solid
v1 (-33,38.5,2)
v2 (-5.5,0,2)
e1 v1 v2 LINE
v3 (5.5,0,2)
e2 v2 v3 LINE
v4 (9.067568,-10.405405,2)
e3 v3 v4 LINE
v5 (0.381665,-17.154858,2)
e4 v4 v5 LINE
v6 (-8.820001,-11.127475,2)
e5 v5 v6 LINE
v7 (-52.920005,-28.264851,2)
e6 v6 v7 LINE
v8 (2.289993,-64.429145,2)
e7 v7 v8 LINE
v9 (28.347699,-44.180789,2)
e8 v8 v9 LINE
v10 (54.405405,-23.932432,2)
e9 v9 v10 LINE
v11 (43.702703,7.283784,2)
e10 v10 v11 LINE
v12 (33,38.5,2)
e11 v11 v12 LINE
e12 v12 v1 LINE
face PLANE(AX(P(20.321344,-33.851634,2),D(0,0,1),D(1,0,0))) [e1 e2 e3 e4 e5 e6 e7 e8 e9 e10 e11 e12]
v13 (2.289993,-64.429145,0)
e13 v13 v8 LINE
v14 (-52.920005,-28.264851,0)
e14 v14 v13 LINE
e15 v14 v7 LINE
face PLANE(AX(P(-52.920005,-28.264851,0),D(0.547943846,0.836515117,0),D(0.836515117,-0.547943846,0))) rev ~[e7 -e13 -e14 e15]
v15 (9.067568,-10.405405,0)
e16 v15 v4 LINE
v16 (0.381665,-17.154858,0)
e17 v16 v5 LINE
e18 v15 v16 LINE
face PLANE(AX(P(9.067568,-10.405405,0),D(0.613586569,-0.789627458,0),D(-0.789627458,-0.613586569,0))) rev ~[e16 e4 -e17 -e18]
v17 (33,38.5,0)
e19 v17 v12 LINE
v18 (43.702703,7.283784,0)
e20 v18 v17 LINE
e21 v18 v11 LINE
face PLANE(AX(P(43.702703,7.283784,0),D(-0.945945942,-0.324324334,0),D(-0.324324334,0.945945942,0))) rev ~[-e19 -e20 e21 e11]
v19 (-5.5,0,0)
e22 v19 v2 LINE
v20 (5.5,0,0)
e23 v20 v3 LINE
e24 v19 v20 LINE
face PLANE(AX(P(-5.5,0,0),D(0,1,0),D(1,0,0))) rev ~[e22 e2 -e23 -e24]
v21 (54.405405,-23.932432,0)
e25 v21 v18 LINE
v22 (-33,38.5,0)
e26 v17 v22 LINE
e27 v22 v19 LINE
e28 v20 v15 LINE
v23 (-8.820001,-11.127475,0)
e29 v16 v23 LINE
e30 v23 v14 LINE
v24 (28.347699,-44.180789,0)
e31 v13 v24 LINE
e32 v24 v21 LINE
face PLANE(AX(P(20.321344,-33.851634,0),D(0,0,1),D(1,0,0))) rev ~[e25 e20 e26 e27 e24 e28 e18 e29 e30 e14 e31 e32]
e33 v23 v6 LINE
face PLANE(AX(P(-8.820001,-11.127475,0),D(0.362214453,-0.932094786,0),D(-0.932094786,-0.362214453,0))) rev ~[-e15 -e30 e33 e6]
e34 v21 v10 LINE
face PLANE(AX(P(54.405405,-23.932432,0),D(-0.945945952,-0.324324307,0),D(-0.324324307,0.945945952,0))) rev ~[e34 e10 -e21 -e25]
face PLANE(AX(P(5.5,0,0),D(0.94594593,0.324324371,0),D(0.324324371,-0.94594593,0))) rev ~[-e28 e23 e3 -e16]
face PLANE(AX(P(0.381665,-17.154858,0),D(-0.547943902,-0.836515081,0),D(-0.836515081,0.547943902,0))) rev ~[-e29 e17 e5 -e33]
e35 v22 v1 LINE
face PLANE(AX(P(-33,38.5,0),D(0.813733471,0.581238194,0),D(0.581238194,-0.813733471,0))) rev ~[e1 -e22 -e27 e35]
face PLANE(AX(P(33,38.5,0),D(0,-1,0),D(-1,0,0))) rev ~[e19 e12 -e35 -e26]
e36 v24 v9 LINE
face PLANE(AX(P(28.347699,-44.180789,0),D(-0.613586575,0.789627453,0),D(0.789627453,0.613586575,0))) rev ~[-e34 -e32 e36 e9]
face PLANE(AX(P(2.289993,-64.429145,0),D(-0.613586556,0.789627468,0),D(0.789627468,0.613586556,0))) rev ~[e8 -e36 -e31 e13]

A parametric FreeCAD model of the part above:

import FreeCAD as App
import Part
import Sketcher
from FreeCAD import Vector
Q = App.Units.Quantity


def add_polygon(sketch, points):
    """Adds a closed chain of lines whose ends are joined by coincident constraints."""
    first, n = sketch.GeometryCount, len(points)
    for a, b in zip(points, points[1:] + points[:1]):
        sketch.addGeometry(Part.LineSegment(App.Vector(*a, 0), App.Vector(*b, 0)), False)
    for i in range(n):
        sketch.addConstraint(Sketcher.Constraint("Coincident", first + i, 2, first + (i + 1) % n, 1))

doc = App.newDocument("Part")
params = doc.addObject("Spreadsheet::Sheet", "Params")
for row, (alias, value) in enumerate([
    ("sketch1_width", "66 mm"),
    ("sketch1_width2", "11 mm"),
    ("sketch1_length", "11.000001 mm"),
    ("sketch1_length2", "11 mm"),
    ("sketch1_length3", "66 mm"),
    ("pad1_length", "2 mm"),
], start=1):
    params.set(f"A{row}", alias)
    params.set(f"B{row}", "=" + value)
    params.setAlias(f"B{row}", alias)

body = doc.addObject("PartDesign::Body", "Body")

sketch1 = body.newObject("Sketcher::SketchObject", "Sketch")
sketch1.AttachmentSupport = (doc.getObject("XY_Plane"), [""])
sketch1.MapMode = "FlatFace"
add_polygon(sketch1, [(9.067568, -10.405405), (0.381665, -17.154858), (-8.820001, -11.127475), (-52.920005, -28.264851), (2.289993, -64.429145), (28.347699, -44.180789), (54.405405, -23.932432), (43.702703, 7.283784), (33, 38.5), (-33, 38.5), (-5.5, 0), (5.5, 0)])
sketch1.addConstraint([
    Sketcher.Constraint("Horizontal", 8),
    Sketcher.Constraint("Horizontal", 10),
    Sketcher.Constraint("PointOnObject", 9, 2, -1),
    Sketcher.Constraint("DistanceX", 8, 2, 8, 1, Q("66 mm")),
    Sketcher.Constraint("DistanceX", 10, 1, 10, 2, Q("11 mm")),
    Sketcher.Constraint("Distance", 0, Q("11.000001 mm")),
    Sketcher.Constraint("Distance", 1, Q("11 mm")),
    Sketcher.Constraint("Distance", 3, Q("66 mm")),
    Sketcher.Constraint("Distance", 4, Q("32.999999 mm")),
    Sketcher.Constraint("Distance", 5, Q("33 mm")),
    Sketcher.Constraint("Distance", 6, Q("33 mm")),
    Sketcher.Constraint("Distance", 7, Q("33 mm")),
    Sketcher.Constraint("Distance", 11, Q("11 mm")),
    Sketcher.Constraint("DistanceX", -1, 1, 7, 2, Q("33 mm")),
    Sketcher.Constraint("DistanceY", -1, 1, 7, 2, Q("38.5 mm")),
    Sketcher.Constraint("DistanceX", 9, 2, -1, 1, Q("5.5 mm")),
    Sketcher.Constraint("DistanceX", 1, 2, -1, 1, Q("8.820001 mm")),
    Sketcher.Constraint("DistanceX", 2, 2, 3, 2, Q("55.209998 mm")),
    Sketcher.Constraint("DistanceX", -1, 1, 4, 2, Q("28.347699 mm")),
    Sketcher.Constraint("Distance", 2, Q("47.312789 mm")),
    Sketcher.Constraint("DistanceY", 0, 2, -1, 1, Q("17.154858 mm")),
    Sketcher.Constraint("DistanceY", 2, 2, -1, 1, Q("28.264851 mm")),
    Sketcher.Constraint("DistanceY", 4, 2, -1, 1, Q("44.180789 mm")),
    Sketcher.Constraint("DistanceY", 1, 2, 6, 2, Q("18.411259 mm")),
])
sketch1.setExpression("Constraints[15]", "Params.sketch1_width")
sketch1.setExpression("Constraints[16]", "Params.sketch1_width2")
sketch1.setExpression("Constraints[17]", "Params.sketch1_length")
sketch1.setExpression("Constraints[18]", "Params.sketch1_length2")
sketch1.setExpression("Constraints[19]", "Params.sketch1_length3")
pad1 = body.newObject("PartDesign::Pad", "Pad")
pad1.Profile = sketch1
pad1.setExpression("Length", "Params.pad1_length")

doc.recompute()
